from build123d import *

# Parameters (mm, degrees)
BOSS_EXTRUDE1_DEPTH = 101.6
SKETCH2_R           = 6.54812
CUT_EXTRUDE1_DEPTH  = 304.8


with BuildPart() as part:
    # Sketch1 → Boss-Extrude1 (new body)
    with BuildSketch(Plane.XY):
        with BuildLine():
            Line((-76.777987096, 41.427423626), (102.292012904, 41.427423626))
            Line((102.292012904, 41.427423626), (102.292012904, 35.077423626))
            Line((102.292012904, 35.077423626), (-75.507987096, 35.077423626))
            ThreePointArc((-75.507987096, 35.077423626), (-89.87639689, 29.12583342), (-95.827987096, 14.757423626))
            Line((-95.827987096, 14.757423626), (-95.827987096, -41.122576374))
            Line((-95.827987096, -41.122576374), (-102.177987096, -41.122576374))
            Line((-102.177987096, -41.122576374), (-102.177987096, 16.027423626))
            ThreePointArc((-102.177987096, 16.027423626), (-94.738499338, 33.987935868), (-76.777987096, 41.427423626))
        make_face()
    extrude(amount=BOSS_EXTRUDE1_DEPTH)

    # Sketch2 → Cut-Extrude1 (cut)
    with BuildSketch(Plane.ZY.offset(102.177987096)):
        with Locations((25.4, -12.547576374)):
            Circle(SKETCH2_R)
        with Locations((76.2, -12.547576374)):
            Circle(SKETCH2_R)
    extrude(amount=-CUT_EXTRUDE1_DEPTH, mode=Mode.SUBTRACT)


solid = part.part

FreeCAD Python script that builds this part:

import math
import FreeCAD as App
import Part
import Sketcher

V = App.Vector
Q = App.Units.Quantity

doc = App.newDocument("Part")
params = doc.addObject("Spreadsheet::Sheet", "Params")
for row, (alias, value) in enumerate([
    ("sketch1_radius", "1 in"),
    ("sketch1_radius2", "0.8 in"),
    ("sketch1_width", "7 in"),
    ("sketch1_height", "2.2 in"),
    ("sketch1_width2", "7.05 in"),
    ("pad1_length", "4 in"),
    ("pocket1_length", "12 in"),
], start=1):
    params.set(f"A{row}", alias)
    params.set(f"B{row}", "=" + value)
    params.setAlias(f"B{row}", alias)

body = doc.addObject("PartDesign::Body", "Body")

# Sketch on XY plane
sketch1 = doc.addObject("Sketcher::SketchObject", "Sketch")
body.addObject(sketch1)
sketch1.AttachmentSupport = (doc.XY_Plane, [""])
sketch1.MapMode = "FlatFace"
sketch1.addGeometry([
    Part.LineSegment(V(102.292013, 41.427424, 0), V(-76.777987, 41.427424, 0)),  # 0
    Part.ArcOfCircle(Part.Circle(V(-76.777987, 16.027424, 0), V(0, 0, 1), 25.4), math.radians(90), math.radians(180)),  # 1
    Part.LineSegment(V(-102.177987, 16.027424, 0), V(-102.177987, -41.122576, 0)),  # 2
    Part.LineSegment(V(-102.177987, -41.122576, 0), V(-95.827987, -41.122576, 0)),  # 3
    Part.LineSegment(V(-95.827987, -41.122576, 0), V(-95.827987, 14.757424, 0)),  # 4
    Part.ArcOfCircle(Part.Circle(V(-75.507987, 14.757424, 0), V(0, 0, 1), 20.32), math.radians(90), math.radians(180)),  # 5
    Part.LineSegment(V(-75.507987, 35.077424, 0), V(102.292013, 35.077424, 0)),  # 6
    Part.LineSegment(V(102.292013, 35.077424, 0), V(102.292013, 41.427424, 0)),  # 7
], False)
sketch1.addConstraint([
    Sketcher.Constraint("Tangent", 0, 2, 1, 1),
    Sketcher.Constraint("Tangent", 1, 2, 2, 1),
    Sketcher.Constraint("Coincident", 2, 2, 3, 1),
    Sketcher.Constraint("Coincident", 3, 2, 4, 1),
    Sketcher.Constraint("Tangent", 4, 2, 5, 2),
    Sketcher.Constraint("Tangent", 5, 1, 6, 1),
    Sketcher.Constraint("Coincident", 6, 2, 7, 1),
    Sketcher.Constraint("Coincident", 7, 2, 0, 1),
    Sketcher.Constraint("Horizontal", 0),
    Sketcher.Constraint("Vertical", 2),
    Sketcher.Constraint("Horizontal", 3),
    Sketcher.Constraint("Vertical", 4),
    Sketcher.Constraint("Horizontal", 6),
    Sketcher.Constraint("Vertical", 7),
    Sketcher.Constraint("Equal", 3, 7),
    Sketcher.Constraint("Radius", 1, Q("1 in")),
    Sketcher.Constraint("Radius", 5, Q("0.8 in")),
    Sketcher.Constraint("DistanceX", 6, 1, 6, 2, Q("7 in")),
    Sketcher.Constraint("DistanceY", 4, 1, 4, 2, Q("2.2 in")),
    Sketcher.Constraint("DistanceX", 0, 2, 0, 1, Q("7.05 in")),
    Sketcher.Constraint("DistanceX", 1, 3, -1, 1, Q("76.777987 mm")),
    Sketcher.Constraint("DistanceY", -1, 1, 1, 3, Q("16.027424 mm")),
])
sketch1.setExpression("Constraints[15]", "Params.sketch1_radius")
sketch1.setExpression("Constraints[16]", "Params.sketch1_radius2")
sketch1.setExpression("Constraints[17]", "Params.sketch1_width")
sketch1.setExpression("Constraints[18]", "Params.sketch1_height")
sketch1.setExpression("Constraints[19]", "Params.sketch1_width2")
pad1 = doc.addObject("PartDesign::Pad", "Pad")
body.addObject(pad1)
pad1.Profile = sketch1
pad1.setExpression("Length", "Params.pad1_length")

# Sketch on YZ plane
sketch2 = doc.addObject("Sketcher::SketchObject", "Sketch001")
body.addObject(sketch2)
sketch2.AttachmentSupport = (doc.YZ_Plane, [""])
sketch2.MapMode = "FlatFace"
sketch2.AttachmentOffset = App.Placement(V(0, 0, -102.177987), App.Rotation())
sketch2.addGeometry([
    Part.Circle(V(-12.547576, 25.4, 0), V(0, 0, 1), 6.54812),
    Part.Circle(V(-12.547576, 76.2, 0), V(0, 0, 1), 6.54812),
], False)
sketch2.addConstraint([
    Sketcher.Constraint("Equal", 0, 1),
    Sketcher.Constraint("Vertical", 0, 3, 1, 3),
    Sketcher.Constraint("DistanceY", -1, 1, 0, 3, Q("1 in")),
    Sketcher.Constraint("DistanceY", -1, 1, 1, 3, Q("3 in")),
    Sketcher.Constraint("Diameter", 0, Q("0.5156 in")),
    Sketcher.Constraint("DistanceX", 0, 3, -1, 1, Q("12.547576 mm")),
])
pocket1 = doc.addObject("PartDesign::Pocket", "Pocket")
body.addObject(pocket1)
pocket1.Profile = sketch2
pocket1.setExpression("Length", "Params.pocket1_length")
pocket1.Reversed = True

doc.recompute()
